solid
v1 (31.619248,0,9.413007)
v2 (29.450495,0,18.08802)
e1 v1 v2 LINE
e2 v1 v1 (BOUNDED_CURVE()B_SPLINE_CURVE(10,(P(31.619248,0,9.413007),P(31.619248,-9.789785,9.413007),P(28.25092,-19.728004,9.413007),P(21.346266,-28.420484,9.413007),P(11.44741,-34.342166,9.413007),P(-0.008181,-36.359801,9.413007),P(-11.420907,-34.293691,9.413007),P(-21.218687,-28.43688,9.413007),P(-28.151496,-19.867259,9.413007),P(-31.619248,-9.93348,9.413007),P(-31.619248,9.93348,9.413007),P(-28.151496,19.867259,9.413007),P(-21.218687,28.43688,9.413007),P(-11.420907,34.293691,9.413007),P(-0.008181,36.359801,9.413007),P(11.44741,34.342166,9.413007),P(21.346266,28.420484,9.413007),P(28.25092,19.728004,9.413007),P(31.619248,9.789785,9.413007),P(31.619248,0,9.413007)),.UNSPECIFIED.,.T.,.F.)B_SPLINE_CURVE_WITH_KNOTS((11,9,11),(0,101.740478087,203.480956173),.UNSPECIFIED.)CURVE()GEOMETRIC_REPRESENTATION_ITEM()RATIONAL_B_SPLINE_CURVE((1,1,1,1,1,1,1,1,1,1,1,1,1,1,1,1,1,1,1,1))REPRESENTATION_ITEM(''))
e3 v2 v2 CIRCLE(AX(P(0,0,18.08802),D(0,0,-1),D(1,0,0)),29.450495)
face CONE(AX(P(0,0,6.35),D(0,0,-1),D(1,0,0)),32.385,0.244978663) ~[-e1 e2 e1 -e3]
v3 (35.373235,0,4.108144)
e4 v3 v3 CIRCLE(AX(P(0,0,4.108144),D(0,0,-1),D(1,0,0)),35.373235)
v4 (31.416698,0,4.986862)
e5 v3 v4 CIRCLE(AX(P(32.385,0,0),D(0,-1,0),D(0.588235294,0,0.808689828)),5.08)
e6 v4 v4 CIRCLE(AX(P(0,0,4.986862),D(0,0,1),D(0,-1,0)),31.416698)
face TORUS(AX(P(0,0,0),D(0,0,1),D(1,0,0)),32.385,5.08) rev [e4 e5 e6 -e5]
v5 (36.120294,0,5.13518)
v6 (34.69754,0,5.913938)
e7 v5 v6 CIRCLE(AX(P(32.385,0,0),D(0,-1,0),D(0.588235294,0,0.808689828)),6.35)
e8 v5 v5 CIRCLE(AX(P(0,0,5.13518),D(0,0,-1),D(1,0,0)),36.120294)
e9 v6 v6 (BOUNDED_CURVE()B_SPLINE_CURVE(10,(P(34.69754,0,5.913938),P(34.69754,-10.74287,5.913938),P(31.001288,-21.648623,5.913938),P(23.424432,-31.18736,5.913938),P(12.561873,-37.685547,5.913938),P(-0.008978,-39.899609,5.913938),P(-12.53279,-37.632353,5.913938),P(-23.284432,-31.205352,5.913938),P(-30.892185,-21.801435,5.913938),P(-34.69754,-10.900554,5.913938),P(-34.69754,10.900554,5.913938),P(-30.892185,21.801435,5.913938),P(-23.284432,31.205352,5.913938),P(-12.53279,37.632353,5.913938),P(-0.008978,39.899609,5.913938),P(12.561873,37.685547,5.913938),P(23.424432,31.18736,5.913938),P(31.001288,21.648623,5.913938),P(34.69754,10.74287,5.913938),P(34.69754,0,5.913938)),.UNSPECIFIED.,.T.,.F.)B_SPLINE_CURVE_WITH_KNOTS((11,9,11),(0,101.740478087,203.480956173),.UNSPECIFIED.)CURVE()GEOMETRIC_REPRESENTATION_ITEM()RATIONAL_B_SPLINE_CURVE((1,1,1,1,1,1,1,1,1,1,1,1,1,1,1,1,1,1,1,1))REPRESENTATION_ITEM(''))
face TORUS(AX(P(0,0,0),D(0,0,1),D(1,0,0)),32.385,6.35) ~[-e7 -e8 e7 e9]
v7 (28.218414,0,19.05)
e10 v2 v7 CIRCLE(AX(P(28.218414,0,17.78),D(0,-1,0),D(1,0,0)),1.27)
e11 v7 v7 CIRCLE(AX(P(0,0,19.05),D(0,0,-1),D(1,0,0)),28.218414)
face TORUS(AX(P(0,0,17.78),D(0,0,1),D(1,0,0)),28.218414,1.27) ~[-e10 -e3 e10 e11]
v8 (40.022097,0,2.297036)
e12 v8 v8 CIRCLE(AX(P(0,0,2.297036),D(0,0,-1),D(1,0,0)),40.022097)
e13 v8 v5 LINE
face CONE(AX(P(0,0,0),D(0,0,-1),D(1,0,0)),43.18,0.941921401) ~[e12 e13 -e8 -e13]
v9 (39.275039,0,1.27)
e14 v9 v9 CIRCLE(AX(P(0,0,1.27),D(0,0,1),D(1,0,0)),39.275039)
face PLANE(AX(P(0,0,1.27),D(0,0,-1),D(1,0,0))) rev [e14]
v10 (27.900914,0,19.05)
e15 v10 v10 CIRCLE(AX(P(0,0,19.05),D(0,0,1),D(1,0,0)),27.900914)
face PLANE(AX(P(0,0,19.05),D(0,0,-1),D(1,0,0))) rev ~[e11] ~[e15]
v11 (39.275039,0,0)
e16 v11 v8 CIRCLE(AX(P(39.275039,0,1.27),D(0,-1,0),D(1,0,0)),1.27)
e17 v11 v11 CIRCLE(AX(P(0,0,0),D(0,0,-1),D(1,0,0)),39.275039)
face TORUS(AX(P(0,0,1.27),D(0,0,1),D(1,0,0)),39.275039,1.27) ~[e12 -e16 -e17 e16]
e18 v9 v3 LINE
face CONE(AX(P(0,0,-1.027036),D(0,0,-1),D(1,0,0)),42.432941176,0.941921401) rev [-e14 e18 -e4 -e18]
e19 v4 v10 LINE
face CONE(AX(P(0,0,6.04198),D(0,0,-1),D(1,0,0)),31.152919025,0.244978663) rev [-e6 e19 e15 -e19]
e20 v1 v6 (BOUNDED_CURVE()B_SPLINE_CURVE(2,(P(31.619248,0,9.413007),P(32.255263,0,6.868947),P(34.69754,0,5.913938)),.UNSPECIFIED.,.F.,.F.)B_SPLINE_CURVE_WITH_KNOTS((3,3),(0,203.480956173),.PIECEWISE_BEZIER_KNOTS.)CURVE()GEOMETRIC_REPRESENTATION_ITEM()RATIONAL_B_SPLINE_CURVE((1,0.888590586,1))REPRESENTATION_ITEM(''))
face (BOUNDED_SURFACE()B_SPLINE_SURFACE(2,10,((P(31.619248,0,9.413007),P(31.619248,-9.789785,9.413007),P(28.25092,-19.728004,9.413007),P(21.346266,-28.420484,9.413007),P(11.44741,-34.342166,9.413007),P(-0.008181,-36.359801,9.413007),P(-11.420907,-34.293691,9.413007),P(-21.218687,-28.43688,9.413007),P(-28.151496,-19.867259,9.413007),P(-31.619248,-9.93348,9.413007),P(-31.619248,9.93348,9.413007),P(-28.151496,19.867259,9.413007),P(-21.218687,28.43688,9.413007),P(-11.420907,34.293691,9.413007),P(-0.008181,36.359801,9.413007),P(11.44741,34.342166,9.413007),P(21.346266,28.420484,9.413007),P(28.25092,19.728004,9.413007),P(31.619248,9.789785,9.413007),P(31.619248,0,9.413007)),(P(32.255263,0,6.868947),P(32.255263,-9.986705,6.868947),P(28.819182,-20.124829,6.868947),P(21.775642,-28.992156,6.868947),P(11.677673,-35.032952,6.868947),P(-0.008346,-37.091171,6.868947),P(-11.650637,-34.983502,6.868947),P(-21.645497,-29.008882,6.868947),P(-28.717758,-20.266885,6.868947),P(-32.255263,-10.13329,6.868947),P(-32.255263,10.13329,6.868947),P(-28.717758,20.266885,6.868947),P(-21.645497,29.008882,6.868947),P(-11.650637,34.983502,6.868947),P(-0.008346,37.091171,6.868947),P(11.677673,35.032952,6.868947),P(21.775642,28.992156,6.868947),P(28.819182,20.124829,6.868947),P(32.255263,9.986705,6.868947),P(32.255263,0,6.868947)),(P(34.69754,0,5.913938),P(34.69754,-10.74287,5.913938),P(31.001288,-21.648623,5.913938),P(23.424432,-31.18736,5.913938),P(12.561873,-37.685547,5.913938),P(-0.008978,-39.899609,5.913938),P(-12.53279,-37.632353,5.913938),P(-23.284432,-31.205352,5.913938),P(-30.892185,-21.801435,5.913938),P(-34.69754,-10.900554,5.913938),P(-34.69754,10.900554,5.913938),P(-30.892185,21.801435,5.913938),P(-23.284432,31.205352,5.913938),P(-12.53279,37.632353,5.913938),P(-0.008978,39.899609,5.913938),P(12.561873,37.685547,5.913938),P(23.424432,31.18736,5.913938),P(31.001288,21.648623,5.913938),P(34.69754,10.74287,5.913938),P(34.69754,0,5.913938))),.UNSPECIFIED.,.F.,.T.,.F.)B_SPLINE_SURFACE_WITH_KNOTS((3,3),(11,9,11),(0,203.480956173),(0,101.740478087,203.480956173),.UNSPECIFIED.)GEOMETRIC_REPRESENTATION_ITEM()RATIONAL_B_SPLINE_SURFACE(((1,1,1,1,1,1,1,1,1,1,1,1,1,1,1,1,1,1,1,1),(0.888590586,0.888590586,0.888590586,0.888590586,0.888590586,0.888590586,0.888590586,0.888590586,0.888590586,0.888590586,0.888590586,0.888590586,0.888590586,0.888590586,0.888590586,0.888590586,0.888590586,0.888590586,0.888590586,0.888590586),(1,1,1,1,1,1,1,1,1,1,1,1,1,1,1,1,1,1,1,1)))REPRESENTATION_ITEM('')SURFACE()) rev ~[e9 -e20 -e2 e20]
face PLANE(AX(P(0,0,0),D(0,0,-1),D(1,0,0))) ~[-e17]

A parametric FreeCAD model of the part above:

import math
import FreeCAD as App
import Part
import Sketcher
Q = App.Units.Quantity


def edges_at(feature, points):
    """Names of the edges that pass closest to the given points."""
    edges = feature.Shape.Edges
    near = lambda p: min(range(len(edges)), key=lambda i: edges[i].distToShape(Part.Vertex(*p))[0])
    return sorted({f"Edge{near(p) + 1}" for p in points})


def faces_at(feature, points):
    """Names of the faces that lie closest to the given points."""
    faces = feature.Shape.Faces
    near = lambda p: min(range(len(faces)), key=lambda i: faces[i].distToShape(Part.Vertex(*p))[0])
    return sorted({f"Face{near(p) + 1}" for p in points})

doc = App.newDocument("Part")
body = doc.addObject("PartDesign::Body", "Body")

# Sketch on XZ plane
sketch1 = body.newObject("Sketcher::SketchObject", "Sketch")
sketch1.AttachmentSupport = (doc.getObject("XZ_Plane"), [""])
sketch1.MapMode = "FlatFace"
sketch1.addGeometry([
    Part.LineSegment(App.Vector(0, 19.1, 0), App.Vector(0, 0, 0)),  # 0
    Part.LineSegment(App.Vector(0, 0, 0), App.Vector(43.2, 0, 0)),  # 1
    Part.LineSegment(App.Vector(43.2, 0, 0), App.Vector(36.1, 5.1, 0)),  # 2
    Part.ArcOfCircle(Part.Circle(App.Vector(32.4, 0, 0), App.Vector(0, 0, 1), 6.3), math.radians(54), math.radians(90)),  # 3
    Part.LineSegment(App.Vector(32.4, 6.3, 0), App.Vector(29.2, 19.1, 0)),  # 4
    Part.LineSegment(App.Vector(29.2, 19.1, 0), App.Vector(0, 19.1, 0)),  # 5
], False)
sketch1.addConstraint([
    Sketcher.Constraint("Coincident", 0, 2, 1, 1),
    Sketcher.Constraint("Coincident", 1, 2, 2, 1),
    Sketcher.Constraint("Tangent", 2, 2, 3, 1),
    Sketcher.Constraint("Coincident", 3, 2, 4, 1),
    Sketcher.Constraint("Coincident", 4, 2, 5, 1),
    Sketcher.Constraint("Coincident", 5, 2, 0, 1),
    Sketcher.Constraint("Vertical", 0),
    Sketcher.Constraint("Horizontal", 1),
    Sketcher.Constraint("Horizontal", 5),
    Sketcher.Constraint("Coincident", 0, 2, -1, 1),
    Sketcher.Constraint("PointOnObject", 3, 3, -1),
    Sketcher.Constraint("Radius", 3, Q("0.25 in")),
    Sketcher.Constraint("DistanceX", 1, 1, 1, 2, Q("1.7 in")),
    Sketcher.Constraint("DistanceX", 5, 2, 5, 1, Q("1.15 in")),
    Sketcher.Constraint("DistanceY", 0, 2, 0, 1, Q("0.75 in")),
    Sketcher.Constraint("DistanceX", -1, 1, 3, 3, Q("1.275 in")),
    Sketcher.Constraint("DistanceX", -1, 1, 3, 2, Q("1.275 in")),
])
revolution = body.newObject("PartDesign::Revolution", "Revolution")
revolution.Profile = sketch1
revolution.ReferenceAxis = (sketch1, ["V_Axis"])
revolution.Angle = 360
doc.recompute()

thickness = body.newObject("PartDesign::Thickness", "Thickness")
thickness.Base = (revolution, faces_at(revolution, [(0, 0, 19.05)]))
thickness.Value = Q("0.05 in")
thickness.Reversed = True
thickness.Join = "Intersection"
doc.recompute()

fillet = body.newObject("PartDesign::Fillet", "Fillet")
fillet.Base = (thickness, edges_at(thickness, [(-43.18, 0, 0)]))
fillet.Radius = Q("0.05 in")
doc.recompute()

fillet2 = body.newObject("PartDesign::Fillet", "Fillet001")
fillet2.Base = (fillet, edges_at(fillet, [(-29.21, 0, 19.05)]))
fillet2.Radius = Q("0.05 in")
doc.recompute()

fillet3 = body.newObject("PartDesign::Fillet", "Fillet002")
fillet3.Base = (fillet2, edges_at(fillet2, [(-32.385, 0, 6.35)]))
fillet3.Radius = Q("0.2 in")

doc.recompute()
